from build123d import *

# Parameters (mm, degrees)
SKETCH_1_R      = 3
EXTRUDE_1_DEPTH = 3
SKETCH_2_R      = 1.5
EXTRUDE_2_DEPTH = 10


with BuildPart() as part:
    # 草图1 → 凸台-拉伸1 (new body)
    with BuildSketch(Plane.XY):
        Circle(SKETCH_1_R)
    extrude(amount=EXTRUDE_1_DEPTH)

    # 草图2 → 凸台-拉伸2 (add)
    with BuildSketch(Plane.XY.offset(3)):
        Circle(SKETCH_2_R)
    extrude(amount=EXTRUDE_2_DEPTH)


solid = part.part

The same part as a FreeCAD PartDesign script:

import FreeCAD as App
import Part
import Sketcher

V = App.Vector
Q = App.Units.Quantity

doc = App.newDocument("Part")
params = doc.addObject("Spreadsheet::Sheet", "Params")
for row, (alias, value) in enumerate([
    ("sketch1_diameter", "6 mm"),
    ("pad1_length", "3 mm"),
    ("sketch2_diameter", "3 mm"),
    ("pad2_length", "10 mm"),
], start=1):
    params.set(f"A{row}", alias)
    params.set(f"B{row}", "=" + value)
    params.setAlias(f"B{row}", alias)

body = doc.addObject("PartDesign::Body", "Body")

# Sketch on XY plane
sketch1 = doc.addObject("Sketcher::SketchObject", "Sketch")
body.addObject(sketch1)
sketch1.AttachmentSupport = (doc.XY_Plane, [""])
sketch1.MapMode = "FlatFace"
sketch1.addGeometry(Part.Circle(V(0, 0, 0), V(0, 0, 1), 3), False)
sketch1.addConstraint([
    Sketcher.Constraint("Coincident", 0, 3, -1, 1),
    Sketcher.Constraint("Diameter", 0, Q("6 mm")),
])
sketch1.setExpression("Constraints[1]", "Params.sketch1_diameter")
pad1 = doc.addObject("PartDesign::Pad", "Pad")
body.addObject(pad1)
pad1.Profile = sketch1
pad1.setExpression("Length", "Params.pad1_length")

# Sketch on XY plane
sketch2 = doc.addObject("Sketcher::SketchObject", "Sketch001")
body.addObject(sketch2)
sketch2.AttachmentSupport = (doc.XY_Plane, [""])
sketch2.MapMode = "FlatFace"
sketch2.AttachmentOffset = App.Placement(V(0, 0, 3), App.Rotation())
sketch2.addGeometry(Part.Circle(V(0, 0, 0), V(0, 0, 1), 1.5), False)
sketch2.addConstraint([
    Sketcher.Constraint("Coincident", 0, 3, -1, 1),
    Sketcher.Constraint("Diameter", 0, Q("3 mm")),
])
sketch2.setExpression("Constraints[1]", "Params.sketch2_diameter")
pad2 = doc.addObject("PartDesign::Pad", "Pad001")
body.addObject(pad2)
pad2.Profile = sketch2
pad2.setExpression("Length", "Params.pad2_length")

doc.recompute()
